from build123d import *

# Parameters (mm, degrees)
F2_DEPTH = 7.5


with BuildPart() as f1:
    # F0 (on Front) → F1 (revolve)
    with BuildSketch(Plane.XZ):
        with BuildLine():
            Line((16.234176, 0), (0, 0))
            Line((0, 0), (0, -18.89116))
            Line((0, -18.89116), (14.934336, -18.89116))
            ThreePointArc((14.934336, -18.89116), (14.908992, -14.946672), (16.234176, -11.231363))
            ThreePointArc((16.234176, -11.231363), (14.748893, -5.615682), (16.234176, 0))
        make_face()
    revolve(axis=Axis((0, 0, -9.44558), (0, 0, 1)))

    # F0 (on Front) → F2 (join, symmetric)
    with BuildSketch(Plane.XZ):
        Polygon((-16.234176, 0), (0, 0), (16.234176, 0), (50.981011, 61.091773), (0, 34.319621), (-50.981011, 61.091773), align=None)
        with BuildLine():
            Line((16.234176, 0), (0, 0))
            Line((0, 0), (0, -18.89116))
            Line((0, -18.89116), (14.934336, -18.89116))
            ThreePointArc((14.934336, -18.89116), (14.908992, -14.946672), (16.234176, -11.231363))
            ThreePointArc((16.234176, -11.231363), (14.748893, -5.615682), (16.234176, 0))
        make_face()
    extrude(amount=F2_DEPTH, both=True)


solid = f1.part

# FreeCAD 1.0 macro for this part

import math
import FreeCAD as App
import Part
import Sketcher

V = App.Vector
Q = App.Units.Quantity

doc = App.newDocument("Part")
body = doc.addObject("PartDesign::Body", "Body")

sketch1 = body.newObject("Sketcher::SketchObject", "Sketch")
sketch1.AttachmentSupport = (doc.getObject("XZ_Plane"), [""])
sketch1.MapMode = "FlatFace"
sketch1.addGeometry(Part.LineSegment(V(16, 0, 0), V(0, 0, 0)), False)
sketch1.addGeometry(Part.LineSegment(V(0, 0, 0), V(0, -19, 0)), False)
sketch1.addGeometry(Part.LineSegment(V(0, -19, 0), V(15, -19, 0)), False)
sketch1.addGeometry(Part.ArcOfCircle(Part.Circle(V(26, -17, 0), V(0, 0, 1), 11), math.radians(150), math.radians(190)), False)
sketch1.addGeometry(Part.ArcOfCircle(Part.Circle(V(26, -6, 0), V(0, 0, 1), 11), math.radians(150), math.radians(210)), False)
sketch1.addConstraint(Sketcher.Constraint("Coincident", 0, 2, 1, 1))
sketch1.addConstraint(Sketcher.Constraint("Coincident", 1, 2, 2, 1))
sketch1.addConstraint(Sketcher.Constraint("Coincident", 2, 2, 3, 2))
sketch1.addConstraint(Sketcher.Constraint("Coincident", 3, 1, 4, 2))
sketch1.addConstraint(Sketcher.Constraint("Coincident", 4, 1, 0, 1))
sketch1.addConstraint(Sketcher.Constraint("Horizontal", 0))
sketch1.addConstraint(Sketcher.Constraint("Vertical", 1))
sketch1.addConstraint(Sketcher.Constraint("Horizontal", 2))
sketch1.addConstraint(Sketcher.Constraint("Coincident", 0, 2, -1, 1))
sketch1.addConstraint(Sketcher.Constraint("Equal", 3, 4))
sketch1.addConstraint(Sketcher.Constraint("Vertical", 3, 3, 4, 3))
sketch1.addConstraint(Sketcher.Constraint("Vertical", 3, 1, 4, 1))
sketch1.addConstraint(Sketcher.Constraint("Radius", 3, Q("11.35876 mm")))
sketch1.addConstraint(Sketcher.Constraint("DistanceY", 1, 2, 1, 1, Q("18.89116 mm")))
sketch1.addConstraint(Sketcher.Constraint("DistanceX", 0, 2, 0, 1, Q("16.234176 mm")))
sketch1.addConstraint(Sketcher.Constraint("DistanceX", 2, 1, 2, 2, Q("14.934336 mm")))
revolution = body.newObject("PartDesign::Revolution", "Revolution")
revolution.Profile = sketch1
revolution.ReferenceAxis = (sketch1, ["V_Axis"])
revolution.Angle = 360

sketch2 = body.newObject("Sketcher::SketchObject", "Sketch001")
sketch2.AttachmentSupport = (doc.getObject("XZ_Plane"), [""])
sketch2.MapMode = "FlatFace"
sketch2.addGeometry(Part.LineSegment(V(-16.234176, 0, 0), V(0, 0, 0)), False)
sketch2.addGeometry(Part.LineSegment(V(0, 0, 0), V(0, -18.89116, 0)), False)
sketch2.addGeometry(Part.LineSegment(V(0, -18.89116, 0), V(14.934336, -18.89116, 0)), False)
sketch2.addGeometry(Part.ArcOfCircle(Part.Circle(V(26.107653, -16.847044, 0), V(0, 0, 1), 11.35876), math.radians(150.370327), math.radians(190.367396)), False)
sketch2.addGeometry(Part.ArcOfCircle(Part.Circle(V(26.107652, -5.615681, 0), V(0, 0, 1), 11.358759), math.radians(150.370324), math.radians(209.629676)), False)
sketch2.addGeometry(Part.LineSegment(V(16.234176, 0, 0), V(50.981011, 61.091773, 0)), False)
sketch2.addGeometry(Part.LineSegment(V(50.981011, 61.091773, 0), V(0, 34.319621, 0)), False)
sketch2.addGeometry(Part.LineSegment(V(0, 34.319621, 0), V(-50.981011, 61.091773, 0)), False)
sketch2.addGeometry(Part.LineSegment(V(-50.981011, 61.091773, 0), V(-16.234176, 0, 0)), False)
sketch2.addConstraint(Sketcher.Constraint("Coincident", 0, 2, 1, 1))
sketch2.addConstraint(Sketcher.Constraint("Coincident", 1, 2, 2, 1))
sketch2.addConstraint(Sketcher.Constraint("Coincident", 2, 2, 3, 2))
sketch2.addConstraint(Sketcher.Constraint("Coincident", 3, 1, 4, 2))
sketch2.addConstraint(Sketcher.Constraint("Coincident", 4, 1, 5, 1))
sketch2.addConstraint(Sketcher.Constraint("Coincident", 5, 2, 6, 1))
sketch2.addConstraint(Sketcher.Constraint("Coincident", 6, 2, 7, 1))
sketch2.addConstraint(Sketcher.Constraint("Coincident", 7, 2, 8, 1))
sketch2.addConstraint(Sketcher.Constraint("Coincident", 8, 2, 0, 1))
sketch2.addConstraint(Sketcher.Constraint("Horizontal", 0))
sketch2.addConstraint(Sketcher.Constraint("Vertical", 1))
sketch2.addConstraint(Sketcher.Constraint("Horizontal", 2))
sketch2.addConstraint(Sketcher.Constraint("Coincident", 0, 2, -1, 1))
sketch2.addConstraint(Sketcher.Constraint("PointOnObject", 4, 1, -1))
sketch2.addConstraint(Sketcher.Constraint("PointOnObject", 6, 2, -2))
sketch2.addConstraint(Sketcher.Constraint("Radius", 3, Q("11.35876 mm")))
sketch2.addConstraint(Sketcher.Constraint("Radius", 4, Q("11.358759 mm")))
sketch2.addConstraint(Sketcher.Constraint("DistanceY", 1, 2, 1, 1, Q("18.89116 mm")))
sketch2.addConstraint(Sketcher.Constraint("DistanceX", 0, 1, 0, 2, Q("16.234176 mm")))
sketch2.addConstraint(Sketcher.Constraint("DistanceX", 2, 1, 2, 2, Q("14.934336 mm")))
sketch2.addConstraint(Sketcher.Constraint("DistanceY", 4, 3, -1, 1, Q("5.615681 mm")))
sketch2.addConstraint(Sketcher.Constraint("DistanceX", -1, 1, 5, 2, Q("50.981011 mm")))
sketch2.addConstraint(Sketcher.Constraint("DistanceY", -1, 1, 6, 2, Q("34.319621 mm")))
sketch2.addConstraint(Sketcher.Constraint("DistanceX", 7, 2, -1, 1, Q("50.981011 mm")))
sketch2.addConstraint(Sketcher.Constraint("DistanceX", 2, 2, 3, 1, Q("1.29984 mm")))
sketch2.addConstraint(Sketcher.Constraint("DistanceY", 3, 1, 4, 3, Q("5.615681 mm")))
sketch2.addConstraint(Sketcher.Constraint("Distance", 5, Q("70.281913 mm")))
sketch2.addConstraint(Sketcher.Constraint("Distance", 7, Q("57.583084 mm")))
pad1 = body.newObject("PartDesign::Pad", "Pad")
pad1.Profile = sketch2
pad1.Length = 15
pad1.Midplane = True

doc.recompute()
